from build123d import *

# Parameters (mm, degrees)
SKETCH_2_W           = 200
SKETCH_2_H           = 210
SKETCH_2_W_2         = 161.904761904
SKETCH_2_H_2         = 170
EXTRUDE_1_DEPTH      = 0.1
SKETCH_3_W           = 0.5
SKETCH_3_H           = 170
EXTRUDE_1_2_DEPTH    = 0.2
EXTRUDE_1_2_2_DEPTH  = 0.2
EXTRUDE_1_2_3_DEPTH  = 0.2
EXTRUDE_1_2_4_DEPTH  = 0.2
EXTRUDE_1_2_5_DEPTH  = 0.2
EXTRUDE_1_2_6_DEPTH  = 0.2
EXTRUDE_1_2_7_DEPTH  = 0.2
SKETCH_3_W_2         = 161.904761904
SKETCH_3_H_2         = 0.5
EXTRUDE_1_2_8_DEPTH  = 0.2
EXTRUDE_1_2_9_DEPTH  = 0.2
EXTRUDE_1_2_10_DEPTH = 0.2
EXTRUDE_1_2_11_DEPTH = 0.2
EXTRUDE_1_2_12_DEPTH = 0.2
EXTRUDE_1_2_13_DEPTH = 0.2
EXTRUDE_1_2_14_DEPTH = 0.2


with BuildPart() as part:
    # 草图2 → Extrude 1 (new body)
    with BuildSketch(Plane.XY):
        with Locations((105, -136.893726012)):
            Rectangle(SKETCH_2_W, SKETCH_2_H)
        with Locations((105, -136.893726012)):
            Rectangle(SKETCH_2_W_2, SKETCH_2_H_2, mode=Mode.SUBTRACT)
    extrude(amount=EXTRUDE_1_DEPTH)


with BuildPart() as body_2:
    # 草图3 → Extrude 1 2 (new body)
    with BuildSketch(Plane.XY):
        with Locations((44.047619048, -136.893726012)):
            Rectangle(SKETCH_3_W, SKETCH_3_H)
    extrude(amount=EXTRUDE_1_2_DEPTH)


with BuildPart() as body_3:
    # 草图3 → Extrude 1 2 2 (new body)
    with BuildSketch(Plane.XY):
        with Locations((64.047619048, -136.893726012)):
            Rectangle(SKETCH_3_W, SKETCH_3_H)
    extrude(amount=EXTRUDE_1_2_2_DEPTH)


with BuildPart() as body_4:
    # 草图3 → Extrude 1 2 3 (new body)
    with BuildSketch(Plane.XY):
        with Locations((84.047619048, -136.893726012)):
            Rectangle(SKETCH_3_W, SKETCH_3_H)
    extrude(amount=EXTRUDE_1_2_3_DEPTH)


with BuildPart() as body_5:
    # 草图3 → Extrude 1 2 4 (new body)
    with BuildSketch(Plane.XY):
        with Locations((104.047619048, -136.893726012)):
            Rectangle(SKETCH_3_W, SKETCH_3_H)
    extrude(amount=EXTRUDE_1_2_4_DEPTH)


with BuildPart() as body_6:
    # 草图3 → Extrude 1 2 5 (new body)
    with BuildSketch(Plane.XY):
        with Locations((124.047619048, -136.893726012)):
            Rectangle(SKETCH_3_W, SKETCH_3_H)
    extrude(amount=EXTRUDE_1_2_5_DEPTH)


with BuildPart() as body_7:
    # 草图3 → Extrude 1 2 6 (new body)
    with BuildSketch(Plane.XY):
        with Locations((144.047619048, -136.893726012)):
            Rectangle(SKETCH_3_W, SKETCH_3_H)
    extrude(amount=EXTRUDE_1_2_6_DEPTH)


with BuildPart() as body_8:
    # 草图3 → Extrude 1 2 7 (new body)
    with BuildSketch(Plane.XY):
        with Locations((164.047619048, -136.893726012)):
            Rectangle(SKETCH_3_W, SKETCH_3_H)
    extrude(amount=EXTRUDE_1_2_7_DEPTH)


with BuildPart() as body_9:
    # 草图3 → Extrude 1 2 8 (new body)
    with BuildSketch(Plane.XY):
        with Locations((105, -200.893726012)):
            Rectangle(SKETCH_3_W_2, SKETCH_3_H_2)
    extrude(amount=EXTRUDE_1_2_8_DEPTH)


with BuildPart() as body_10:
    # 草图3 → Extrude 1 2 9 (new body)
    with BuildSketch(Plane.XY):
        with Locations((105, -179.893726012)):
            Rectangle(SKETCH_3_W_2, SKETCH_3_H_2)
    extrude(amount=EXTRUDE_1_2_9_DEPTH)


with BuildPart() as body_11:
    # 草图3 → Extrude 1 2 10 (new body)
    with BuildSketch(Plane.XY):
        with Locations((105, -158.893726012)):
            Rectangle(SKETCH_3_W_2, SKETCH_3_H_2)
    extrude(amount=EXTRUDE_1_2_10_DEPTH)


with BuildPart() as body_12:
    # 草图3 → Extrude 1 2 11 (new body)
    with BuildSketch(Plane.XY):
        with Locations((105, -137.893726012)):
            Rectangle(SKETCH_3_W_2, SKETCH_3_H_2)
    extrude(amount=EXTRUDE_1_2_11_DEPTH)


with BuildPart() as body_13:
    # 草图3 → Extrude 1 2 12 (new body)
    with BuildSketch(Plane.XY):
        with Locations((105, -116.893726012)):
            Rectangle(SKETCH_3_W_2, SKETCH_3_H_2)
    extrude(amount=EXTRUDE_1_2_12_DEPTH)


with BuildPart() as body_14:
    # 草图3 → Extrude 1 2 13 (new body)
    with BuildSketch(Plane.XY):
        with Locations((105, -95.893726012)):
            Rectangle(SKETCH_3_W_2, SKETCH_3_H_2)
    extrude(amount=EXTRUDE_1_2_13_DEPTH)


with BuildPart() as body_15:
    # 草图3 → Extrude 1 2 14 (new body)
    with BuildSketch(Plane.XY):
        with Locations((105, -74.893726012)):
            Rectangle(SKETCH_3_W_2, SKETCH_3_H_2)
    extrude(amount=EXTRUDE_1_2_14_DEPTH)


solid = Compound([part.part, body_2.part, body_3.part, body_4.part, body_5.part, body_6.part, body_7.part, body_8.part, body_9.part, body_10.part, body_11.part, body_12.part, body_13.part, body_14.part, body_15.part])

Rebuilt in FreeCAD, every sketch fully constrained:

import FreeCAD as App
import Part
import Sketcher

V = App.Vector


def add_polygon(sketch, points):
    """Adds a closed chain of lines whose ends are joined by coincident constraints."""
    first, n = sketch.GeometryCount, len(points)
    for a, b in zip(points, points[1:] + points[:1]):
        sketch.addGeometry(Part.LineSegment(App.Vector(*a, 0), App.Vector(*b, 0)), False)
    for i in range(n):
        sketch.addConstraint(Sketcher.Constraint("Coincident", first + i, 2, first + (i + 1) % n, 1))

doc = App.newDocument("Part")
params = doc.addObject("Spreadsheet::Sheet", "Params")
for row, (alias, value) in enumerate([
    ("sketch1_width", "200 mm"),
    ("sketch1_height", "210 mm"),
    ("sketch1_height2", "170 mm"),
    ("pad1_length", "0.1 mm"),
    ("sketch2_height", "170 mm"),
    ("sketch2_width", "0.5 mm"),
    ("pad2_length", "0.2 mm"),
    ("sketch3_height", "170 mm"),
    ("sketch3_width", "0.5 mm"),
    ("pad3_length", "0.2 mm"),
    ("sketch4_height", "170 mm"),
    ("sketch4_width", "0.5 mm"),
    ("pad4_length", "0.2 mm"),
    ("sketch5_height", "170 mm"),
    ("sketch5_width", "0.5 mm"),
    ("pad5_length", "0.2 mm"),
    ("sketch6_height", "170 mm"),
    ("sketch6_width", "0.5 mm"),
    ("pad6_length", "0.2 mm"),
    ("sketch7_height", "170 mm"),
    ("sketch7_width", "0.5 mm"),
    ("pad7_length", "0.2 mm"),
    ("sketch8_height", "170 mm"),
    ("sketch8_width", "0.5 mm"),
    ("pad8_length", "0.2 mm"),
    ("sketch9_height", "0.5 mm"),
    ("pad9_length", "0.2 mm"),
    ("sketch10_height", "0.5 mm"),
    ("pad10_length", "0.2 mm"),
    ("sketch11_height", "0.5 mm"),
    ("pad11_length", "0.2 mm"),
    ("sketch12_height", "0.5 mm"),
    ("pad12_length", "0.2 mm"),
    ("sketch13_height", "0.5 mm"),
    ("pad13_length", "0.2 mm"),
    ("sketch14_height", "0.5 mm"),
    ("pad14_length", "0.2 mm"),
    ("sketch15_height", "0.5 mm"),
    ("pad15_length", "0.2 mm"),
], start=1):
    params.set(f"A{row}", alias)
    params.set(f"B{row}", "=" + value)
    params.setAlias(f"B{row}", alias)

body = doc.addObject("PartDesign::Body", "Body")

# Sketch on XY plane
sketch1 = body.newObject("Sketcher::SketchObject", "Sketch")
sketch1.AttachmentSupport = (doc.getObject("XY_Plane"), [""])
sketch1.MapMode = "FlatFace"
add_polygon(sketch1, [(5, -31.893726), (5, -241.893726), (205, -241.893726), (205, -31.893726)])  # lines 0-3
add_polygon(sketch1, [(185.952381, -221.893726), (24.047619, -221.893726), (24.047619, -51.893726), (185.952381, -51.893726)])  # lines 4-7
sketch1.addConstraint([
    Sketcher.Constraint("Vertical", 0),
    Sketcher.Constraint("Horizontal", 1),
    Sketcher.Constraint("Vertical", 2),
    Sketcher.Constraint("Horizontal", 3),
    Sketcher.Constraint("Horizontal", 4),
    Sketcher.Constraint("Vertical", 5),
    Sketcher.Constraint("Horizontal", 6),
    Sketcher.Constraint("Vertical", 7),
    Sketcher.Constraint("DistanceX", 1, 1, 1, 2, 200.0),
    Sketcher.Constraint("DistanceY", 0, 2, 0, 1, 210.0),
    Sketcher.Constraint("DistanceY", 5, 1, 5, 2, 170.0),
    Sketcher.Constraint("DistanceX", -1, 1, 0, 2, 5.0),
    Sketcher.Constraint("DistanceY", 0, 2, 4, 2, 20.0),
    Sketcher.Constraint("DistanceX", 4, 2, 4, 1, 161.904762),
    Sketcher.Constraint("DistanceX", -1, 1, 4, 2, 24.047619),
    Sketcher.Constraint("DistanceY", 0, 2, -1, 1, 241.893726),
])
sketch1.setExpression("Constraints[16]", "Params.sketch1_width")
sketch1.setExpression("Constraints[17]", "Params.sketch1_height")
sketch1.setExpression("Constraints[18]", "Params.sketch1_height2")
pad1 = body.newObject("PartDesign::Pad", "Pad")
pad1.Profile = sketch1
pad1.setExpression("Length", "Params.pad1_length")
body2 = doc.addObject("PartDesign::Body", "Body001")

# Sketch on XY plane
sketch2 = body2.newObject("Sketcher::SketchObject", "Sketch001")
sketch2.AttachmentSupport = (doc.getObject("XY_Plane001"), [""])
sketch2.MapMode = "FlatFace"
add_polygon(sketch2, [(43.797619, -51.893726), (43.797619, -221.893726), (44.297619, -221.893726), (44.297619, -51.893726)])  # lines 0-3
sketch2.addConstraint([
    Sketcher.Constraint("Vertical", 0),
    Sketcher.Constraint("Horizontal", 1),
    Sketcher.Constraint("Vertical", 2),
    Sketcher.Constraint("Horizontal", 3),
    Sketcher.Constraint("DistanceY", 0, 2, 0, 1, 170.0),
    Sketcher.Constraint("DistanceX", 1, 1, 1, 2, 0.5),
    Sketcher.Constraint("DistanceX", -1, 1, 0, 2, 43.797619),
    Sketcher.Constraint("DistanceY", 0, 2, -1, 1, 221.893726),
])
sketch2.setExpression("Constraints[8]", "Params.sketch2_height")
sketch2.setExpression("Constraints[9]", "Params.sketch2_width")
pad2 = body2.newObject("PartDesign::Pad", "Pad001")
pad2.Profile = sketch2
pad2.setExpression("Length", "Params.pad2_length")
body3 = doc.addObject("PartDesign::Body", "Body002")

# Sketch on XY plane
sketch3 = body3.newObject("Sketcher::SketchObject", "Sketch002")
sketch3.AttachmentSupport = (doc.getObject("XY_Plane002"), [""])
sketch3.MapMode = "FlatFace"
add_polygon(sketch3, [(63.797619, -51.893726), (63.797619, -221.893726), (64.297619, -221.893726), (64.297619, -51.893726)])  # lines 0-3
sketch3.addConstraint([
    Sketcher.Constraint("Vertical", 0),
    Sketcher.Constraint("Horizontal", 1),
    Sketcher.Constraint("Vertical", 2),
    Sketcher.Constraint("Horizontal", 3),
    Sketcher.Constraint("DistanceY", 0, 2, 0, 1, 170.0),
    Sketcher.Constraint("DistanceX", 1, 1, 1, 2, 0.5),
    Sketcher.Constraint("DistanceX", -1, 1, 0, 2, 63.797619),
    Sketcher.Constraint("DistanceY", 0, 2, -1, 1, 221.893726),
])
sketch3.setExpression("Constraints[8]", "Params.sketch3_height")
sketch3.setExpression("Constraints[9]", "Params.sketch3_width")
pad3 = body3.newObject("PartDesign::Pad", "Pad002")
pad3.Profile = sketch3
pad3.setExpression("Length", "Params.pad3_length")
body4 = doc.addObject("PartDesign::Body", "Body003")

# Sketch on XY plane
sketch4 = body4.newObject("Sketcher::SketchObject", "Sketch003")
sketch4.AttachmentSupport = (doc.getObject("XY_Plane003"), [""])
sketch4.MapMode = "FlatFace"
add_polygon(sketch4, [(83.797619, -51.893726), (83.797619, -221.893726), (84.297619, -221.893726), (84.297619, -51.893726)])  # lines 0-3
sketch4.addConstraint([
    Sketcher.Constraint("Vertical", 0),
    Sketcher.Constraint("Horizontal", 1),
    Sketcher.Constraint("Vertical", 2),
    Sketcher.Constraint("Horizontal", 3),
    Sketcher.Constraint("DistanceY", 0, 2, 0, 1, 170.0),
    Sketcher.Constraint("DistanceX", 1, 1, 1, 2, 0.5),
    Sketcher.Constraint("DistanceX", -1, 1, 0, 2, 83.797619),
    Sketcher.Constraint("DistanceY", 0, 2, -1, 1, 221.893726),
])
sketch4.setExpression("Constraints[8]", "Params.sketch4_height")
sketch4.setExpression("Constraints[9]", "Params.sketch4_width")
pad4 = body4.newObject("PartDesign::Pad", "Pad003")
pad4.Profile = sketch4
pad4.setExpression("Length", "Params.pad4_length")
body5 = doc.addObject("PartDesign::Body", "Body004")

# Sketch on XY plane
sketch5 = body5.newObject("Sketcher::SketchObject", "Sketch004")
sketch5.AttachmentSupport = (doc.getObject("XY_Plane004"), [""])
sketch5.MapMode = "FlatFace"
add_polygon(sketch5, [(103.797619, -51.893726), (103.797619, -221.893726), (104.297619, -221.893726), (104.297619, -51.893726)])  # lines 0-3
sketch5.addConstraint([
    Sketcher.Constraint("Vertical", 0),
    Sketcher.Constraint("Horizontal", 1),
    Sketcher.Constraint("Vertical", 2),
    Sketcher.Constraint("Horizontal", 3),
    Sketcher.Constraint("DistanceY", 0, 2, 0, 1, 170.0),
    Sketcher.Constraint("DistanceX", 1, 1, 1, 2, 0.5),
    Sketcher.Constraint("DistanceX", -1, 1, 0, 2, 103.797619),
    Sketcher.Constraint("DistanceY", 0, 2, -1, 1, 221.893726),
])
sketch5.setExpression("Constraints[8]", "Params.sketch5_height")
sketch5.setExpression("Constraints[9]", "Params.sketch5_width")
pad5 = body5.newObject("PartDesign::Pad", "Pad004")
pad5.Profile = sketch5
pad5.setExpression("Length", "Params.pad5_length")
body6 = doc.addObject("PartDesign::Body", "Body005")

# Sketch on XY plane
sketch6 = body6.newObject("Sketcher::SketchObject", "Sketch005")
sketch6.AttachmentSupport = (doc.getObject("XY_Plane005"), [""])
sketch6.MapMode = "FlatFace"
add_polygon(sketch6, [(123.797619, -51.893726), (123.797619, -221.893726), (124.297619, -221.893726), (124.297619, -51.893726)])  # lines 0-3
sketch6.addConstraint([
    Sketcher.Constraint("Vertical", 0),
    Sketcher.Constraint("Horizontal", 1),
    Sketcher.Constraint("Vertical", 2),
    Sketcher.Constraint("Horizontal", 3),
    Sketcher.Constraint("DistanceY", 0, 2, 0, 1, 170.0),
    Sketcher.Constraint("DistanceX", 1, 1, 1, 2, 0.5),
    Sketcher.Constraint("DistanceX", -1, 1, 0, 2, 123.797619),
    Sketcher.Constraint("DistanceY", 0, 2, -1, 1, 221.893726),
])
sketch6.setExpression("Constraints[8]", "Params.sketch6_height")
sketch6.setExpression("Constraints[9]", "Params.sketch6_width")
pad6 = body6.newObject("PartDesign::Pad", "Pad005")
pad6.Profile = sketch6
pad6.setExpression("Length", "Params.pad6_length")
body7 = doc.addObject("PartDesign::Body", "Body006")

# Sketch on XY plane
sketch7 = body7.newObject("Sketcher::SketchObject", "Sketch006")
sketch7.AttachmentSupport = (doc.getObject("XY_Plane006"), [""])
sketch7.MapMode = "FlatFace"
add_polygon(sketch7, [(143.797619, -51.893726), (143.797619, -221.893726), (144.297619, -221.893726), (144.297619, -51.893726)])  # lines 0-3
sketch7.addConstraint([
    Sketcher.Constraint("Vertical", 0),
    Sketcher.Constraint("Horizontal", 1),
    Sketcher.Constraint("Vertical", 2),
    Sketcher.Constraint("Horizontal", 3),
    Sketcher.Constraint("DistanceY", 0, 2, 0, 1, 170.0),
    Sketcher.Constraint("DistanceX", 1, 1, 1, 2, 0.5),
    Sketcher.Constraint("DistanceX", -1, 1, 0, 2, 143.797619),
    Sketcher.Constraint("DistanceY", 0, 2, -1, 1, 221.893726),
])
sketch7.setExpression("Constraints[8]", "Params.sketch7_height")
sketch7.setExpression("Constraints[9]", "Params.sketch7_width")
pad7 = body7.newObject("PartDesign::Pad", "Pad006")
pad7.Profile = sketch7
pad7.setExpression("Length", "Params.pad7_length")
body8 = doc.addObject("PartDesign::Body", "Body007")

# Sketch on XY plane
sketch8 = body8.newObject("Sketcher::SketchObject", "Sketch007")
sketch8.AttachmentSupport = (doc.getObject("XY_Plane007"), [""])
sketch8.MapMode = "FlatFace"
add_polygon(sketch8, [(163.797619, -51.893726), (163.797619, -221.893726), (164.297619, -221.893726), (164.297619, -51.893726)])  # lines 0-3
sketch8.addConstraint([
    Sketcher.Constraint("Vertical", 0),
    Sketcher.Constraint("Horizontal", 1),
    Sketcher.Constraint("Vertical", 2),
    Sketcher.Constraint("Horizontal", 3),
    Sketcher.Constraint("DistanceY", 0, 2, 0, 1, 170.0),
    Sketcher.Constraint("DistanceX", 1, 1, 1, 2, 0.5),
    Sketcher.Constraint("DistanceX", -1, 1, 0, 2, 163.797619),
    Sketcher.Constraint("DistanceY", 0, 2, -1, 1, 221.893726),
])
sketch8.setExpression("Constraints[8]", "Params.sketch8_height")
sketch8.setExpression("Constraints[9]", "Params.sketch8_width")
pad8 = body8.newObject("PartDesign::Pad", "Pad007")
pad8.Profile = sketch8
pad8.setExpression("Length", "Params.pad8_length")
body9 = doc.addObject("PartDesign::Body", "Body008")

# Sketch on XY plane
sketch9 = body9.newObject("Sketcher::SketchObject", "Sketch008")
sketch9.AttachmentSupport = (doc.getObject("XY_Plane008"), [""])
sketch9.MapMode = "FlatFace"
add_polygon(sketch9, [(24.047619, -200.643726), (24.047619, -201.143726), (185.952381, -201.143726), (185.952381, -200.643726)])  # lines 0-3
sketch9.addConstraint([
    Sketcher.Constraint("Vertical", 0),
    Sketcher.Constraint("Horizontal", 1),
    Sketcher.Constraint("Vertical", 2),
    Sketcher.Constraint("Horizontal", 3),
    Sketcher.Constraint("DistanceY", 0, 2, 0, 1, 0.5),
    Sketcher.Constraint("DistanceX", 1, 1, 1, 2, 161.904762),
    Sketcher.Constraint("DistanceX", -1, 1, 0, 2, 24.047619),
    Sketcher.Constraint("DistanceY", 0, 2, -1, 1, 201.143726),
])
sketch9.setExpression("Constraints[8]", "Params.sketch9_height")
pad9 = body9.newObject("PartDesign::Pad", "Pad008")
pad9.Profile = sketch9
pad9.setExpression("Length", "Params.pad9_length")
body10 = doc.addObject("PartDesign::Body", "Body009")

# Sketch on XY plane
sketch10 = body10.newObject("Sketcher::SketchObject", "Sketch009")
sketch10.AttachmentSupport = (doc.getObject("XY_Plane009"), [""])
sketch10.MapMode = "FlatFace"
add_polygon(sketch10, [(24.047619, -179.643726), (24.047619, -180.143726), (185.952381, -180.143726), (185.952381, -179.643726)])  # lines 0-3
sketch10.addConstraint([
    Sketcher.Constraint("Vertical", 0),
    Sketcher.Constraint("Horizontal", 1),
    Sketcher.Constraint("Vertical", 2),
    Sketcher.Constraint("Horizontal", 3),
    Sketcher.Constraint("DistanceY", 0, 2, 0, 1, 0.5),
    Sketcher.Constraint("DistanceX", 1, 1, 1, 2, 161.904762),
    Sketcher.Constraint("DistanceX", -1, 1, 0, 2, 24.047619),
    Sketcher.Constraint("DistanceY", 0, 2, -1, 1, 180.143726),
])
sketch10.setExpression("Constraints[8]", "Params.sketch10_height")
pad10 = body10.newObject("PartDesign::Pad", "Pad009")
pad10.Profile = sketch10
pad10.setExpression("Length", "Params.pad10_length")
body11 = doc.addObject("PartDesign::Body", "Body010")

# Sketch on XY plane
sketch11 = body11.newObject("Sketcher::SketchObject", "Sketch010")
sketch11.AttachmentSupport = (doc.getObject("XY_Plane010"), [""])
sketch11.MapMode = "FlatFace"
add_polygon(sketch11, [(24.047619, -158.643726), (24.047619, -159.143726), (185.952381, -159.143726), (185.952381, -158.643726)])  # lines 0-3
sketch11.addConstraint([
    Sketcher.Constraint("Vertical", 0),
    Sketcher.Constraint("Horizontal", 1),
    Sketcher.Constraint("Vertical", 2),
    Sketcher.Constraint("Horizontal", 3),
    Sketcher.Constraint("DistanceY", 0, 2, 0, 1, 0.5),
    Sketcher.Constraint("DistanceX", 1, 1, 1, 2, 161.904762),
    Sketcher.Constraint("DistanceX", -1, 1, 0, 2, 24.047619),
    Sketcher.Constraint("DistanceY", 0, 2, -1, 1, 159.143726),
])
sketch11.setExpression("Constraints[8]", "Params.sketch11_height")
pad11 = body11.newObject("PartDesign::Pad", "Pad010")
pad11.Profile = sketch11
pad11.setExpression("Length", "Params.pad11_length")
body12 = doc.addObject("PartDesign::Body", "Body011")

# Sketch on XY plane
sketch12 = body12.newObject("Sketcher::SketchObject", "Sketch011")
sketch12.AttachmentSupport = (doc.getObject("XY_Plane011"), [""])
sketch12.MapMode = "FlatFace"
add_polygon(sketch12, [(24.047619, -137.643726), (24.047619, -138.143726), (185.952381, -138.143726), (185.952381, -137.643726)])  # lines 0-3
sketch12.addConstraint([
    Sketcher.Constraint("Vertical", 0),
    Sketcher.Constraint("Horizontal", 1),
    Sketcher.Constraint("Vertical", 2),
    Sketcher.Constraint("Horizontal", 3),
    Sketcher.Constraint("DistanceY", 0, 2, 0, 1, 0.5),
    Sketcher.Constraint("DistanceX", 1, 1, 1, 2, 161.904762),
    Sketcher.Constraint("DistanceX", -1, 1, 0, 2, 24.047619),
    Sketcher.Constraint("DistanceY", 0, 2, -1, 1, 138.143726),
])
sketch12.setExpression("Constraints[8]", "Params.sketch12_height")
pad12 = body12.newObject("PartDesign::Pad", "Pad011")
pad12.Profile = sketch12
pad12.setExpression("Length", "Params.pad12_length")
body13 = doc.addObject("PartDesign::Body", "Body012")

# Sketch on XY plane
sketch13 = body13.newObject("Sketcher::SketchObject", "Sketch012")
sketch13.AttachmentSupport = (doc.getObject("XY_Plane012"), [""])
sketch13.MapMode = "FlatFace"
add_polygon(sketch13, [(24.047619, -116.643726), (24.047619, -117.143726), (185.952381, -117.143726), (185.952381, -116.643726)])  # lines 0-3
sketch13.addConstraint([
    Sketcher.Constraint("Vertical", 0),
    Sketcher.Constraint("Horizontal", 1),
    Sketcher.Constraint("Vertical", 2),
    Sketcher.Constraint("Horizontal", 3),
    Sketcher.Constraint("DistanceY", 0, 2, 0, 1, 0.5),
    Sketcher.Constraint("DistanceX", 1, 1, 1, 2, 161.904762),
    Sketcher.Constraint("DistanceX", -1, 1, 0, 2, 24.047619),
    Sketcher.Constraint("DistanceY", 0, 2, -1, 1, 117.143726),
])
sketch13.setExpression("Constraints[8]", "Params.sketch13_height")
pad13 = body13.newObject("PartDesign::Pad", "Pad012")
pad13.Profile = sketch13
pad13.setExpression("Length", "Params.pad13_length")
body14 = doc.addObject("PartDesign::Body", "Body013")

# Sketch on XY plane
sketch14 = body14.newObject("Sketcher::SketchObject", "Sketch013")
sketch14.AttachmentSupport = (doc.getObject("XY_Plane013"), [""])
sketch14.MapMode = "FlatFace"
add_polygon(sketch14, [(24.047619, -95.643726), (24.047619, -96.143726), (185.952381, -96.143726), (185.952381, -95.643726)])  # lines 0-3
sketch14.addConstraint([
    Sketcher.Constraint("Vertical", 0),
    Sketcher.Constraint("Horizontal", 1),
    Sketcher.Constraint("Vertical", 2),
    Sketcher.Constraint("Horizontal", 3),
    Sketcher.Constraint("DistanceY", 0, 2, 0, 1, 0.5),
    Sketcher.Constraint("DistanceX", 1, 1, 1, 2, 161.904762),
    Sketcher.Constraint("DistanceX", -1, 1, 0, 2, 24.047619),
    Sketcher.Constraint("DistanceY", 0, 2, -1, 1, 96.143726),
])
sketch14.setExpression("Constraints[8]", "Params.sketch14_height")
pad14 = body14.newObject("PartDesign::Pad", "Pad013")
pad14.Profile = sketch14
pad14.setExpression("Length", "Params.pad14_length")
body15 = doc.addObject("PartDesign::Body", "Body014")

# Sketch on XY plane
sketch15 = body15.newObject("Sketcher::SketchObject", "Sketch014")
sketch15.AttachmentSupport = (doc.getObject("XY_Plane014"), [""])
sketch15.MapMode = "FlatFace"
add_polygon(sketch15, [(24.047619, -74.643726), (24.047619, -75.143726), (185.952381, -75.143726), (185.952381, -74.643726)])  # lines 0-3
sketch15.addConstraint([
    Sketcher.Constraint("Vertical", 0),
    Sketcher.Constraint("Horizontal", 1),
    Sketcher.Constraint("Vertical", 2),
    Sketcher.Constraint("Horizontal", 3),
    Sketcher.Constraint("DistanceY", 0, 2, 0, 1, 0.5),
    Sketcher.Constraint("DistanceX", 1, 1, 1, 2, 161.904762),
    Sketcher.Constraint("DistanceX", -1, 1, 0, 2, 24.047619),
    Sketcher.Constraint("DistanceY", 0, 2, -1, 1, 75.143726),
])
sketch15.setExpression("Constraints[8]", "Params.sketch15_height")
pad15 = body15.newObject("PartDesign::Pad", "Pad014")
pad15.Profile = sketch15
pad15.setExpression("Length", "Params.pad15_length")

doc.recompute()
